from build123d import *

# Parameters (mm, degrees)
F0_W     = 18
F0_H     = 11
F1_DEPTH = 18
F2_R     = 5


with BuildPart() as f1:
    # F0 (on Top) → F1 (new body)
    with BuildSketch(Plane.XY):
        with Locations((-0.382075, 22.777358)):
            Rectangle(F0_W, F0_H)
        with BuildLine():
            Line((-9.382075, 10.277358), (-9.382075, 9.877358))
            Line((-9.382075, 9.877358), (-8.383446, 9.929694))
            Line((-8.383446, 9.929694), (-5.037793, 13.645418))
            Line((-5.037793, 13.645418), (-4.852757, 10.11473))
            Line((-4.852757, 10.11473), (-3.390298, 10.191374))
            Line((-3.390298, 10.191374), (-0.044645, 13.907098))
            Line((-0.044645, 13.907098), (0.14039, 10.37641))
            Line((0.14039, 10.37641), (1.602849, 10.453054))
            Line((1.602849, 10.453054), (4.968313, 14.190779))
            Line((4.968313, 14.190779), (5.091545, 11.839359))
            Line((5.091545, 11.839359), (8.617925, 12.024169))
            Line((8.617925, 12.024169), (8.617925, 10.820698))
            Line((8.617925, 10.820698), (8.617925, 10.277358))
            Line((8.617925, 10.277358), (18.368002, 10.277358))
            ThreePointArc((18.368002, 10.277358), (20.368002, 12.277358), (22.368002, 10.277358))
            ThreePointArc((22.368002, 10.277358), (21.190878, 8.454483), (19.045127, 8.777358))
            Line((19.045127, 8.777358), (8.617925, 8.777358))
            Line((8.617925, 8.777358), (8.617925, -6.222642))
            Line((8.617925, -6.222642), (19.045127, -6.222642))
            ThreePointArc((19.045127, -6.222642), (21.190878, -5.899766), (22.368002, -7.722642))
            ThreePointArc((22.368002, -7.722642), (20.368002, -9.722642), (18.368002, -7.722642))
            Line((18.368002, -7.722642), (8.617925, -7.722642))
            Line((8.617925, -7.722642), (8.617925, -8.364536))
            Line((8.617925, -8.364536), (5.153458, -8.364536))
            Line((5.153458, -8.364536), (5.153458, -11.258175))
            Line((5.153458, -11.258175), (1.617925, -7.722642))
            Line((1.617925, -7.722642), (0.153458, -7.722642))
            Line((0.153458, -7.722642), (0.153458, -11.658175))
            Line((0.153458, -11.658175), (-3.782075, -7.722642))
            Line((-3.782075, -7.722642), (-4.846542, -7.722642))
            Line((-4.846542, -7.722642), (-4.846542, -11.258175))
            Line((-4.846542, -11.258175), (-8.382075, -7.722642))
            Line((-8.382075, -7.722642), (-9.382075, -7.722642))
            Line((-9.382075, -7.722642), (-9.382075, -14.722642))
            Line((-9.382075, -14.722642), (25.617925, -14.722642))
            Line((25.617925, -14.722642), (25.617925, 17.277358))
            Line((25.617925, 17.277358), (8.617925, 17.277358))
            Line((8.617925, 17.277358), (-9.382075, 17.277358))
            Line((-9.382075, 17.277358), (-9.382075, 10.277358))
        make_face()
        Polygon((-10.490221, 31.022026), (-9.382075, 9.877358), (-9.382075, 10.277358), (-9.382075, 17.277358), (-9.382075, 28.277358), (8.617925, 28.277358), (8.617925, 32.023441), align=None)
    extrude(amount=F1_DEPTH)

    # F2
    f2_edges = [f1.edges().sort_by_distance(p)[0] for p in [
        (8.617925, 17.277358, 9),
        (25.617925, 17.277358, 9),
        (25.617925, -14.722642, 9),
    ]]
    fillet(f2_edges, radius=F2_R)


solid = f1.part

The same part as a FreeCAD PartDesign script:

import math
import FreeCAD as App
import Part
import Sketcher
Q = App.Units.Quantity


def edges_at(feature, points):
    """Names of the edges that pass closest to the given points."""
    edges = feature.Shape.Edges
    near = lambda p: min(range(len(edges)), key=lambda i: edges[i].distToShape(Part.Vertex(*p))[0])
    return sorted({f"Edge{near(p) + 1}" for p in points})

doc = App.newDocument("Part")
body = doc.addObject("PartDesign::Body", "Body")

sketch1 = body.newObject("Sketcher::SketchObject", "Sketch")
sketch1.AttachmentSupport = (doc.getObject("XY_Plane"), [""])
sketch1.MapMode = "FlatFace"
sketch1.addGeometry([
    Part.LineSegment(App.Vector(-9.4, 9.9, 0), App.Vector(-8.4, 9.9, 0)),
    Part.LineSegment(App.Vector(-8.4, 9.9, 0), App.Vector(-5, 13.6, 0)),
    Part.LineSegment(App.Vector(-5, 13.6, 0), App.Vector(-4.9, 10.1, 0)),
    Part.LineSegment(App.Vector(-4.9, 10.1, 0), App.Vector(-3.4, 10.2, 0)),
    Part.LineSegment(App.Vector(-3.4, 10.2, 0), App.Vector(0, 13.9, 0)),
    Part.LineSegment(App.Vector(0, 13.9, 0), App.Vector(0.1, 10.4, 0)),
    Part.LineSegment(App.Vector(0.1, 10.4, 0), App.Vector(1.6, 10.5, 0)),
    Part.LineSegment(App.Vector(1.6, 10.5, 0), App.Vector(5, 14.2, 0)),
    Part.LineSegment(App.Vector(5, 14.2, 0), App.Vector(5.1, 11.8, 0)),
    Part.LineSegment(App.Vector(5.1, 11.8, 0), App.Vector(8.6, 12, 0)),
    Part.LineSegment(App.Vector(8.6, 12, 0), App.Vector(8.6, 10.3, 0)),
    Part.LineSegment(App.Vector(8.6, 10.3, 0), App.Vector(18.4, 10.3, 0)),
    Part.ArcOfCircle(Part.Circle(App.Vector(20.4, 10.3, 0), App.Vector(0, 0, 1), 2), math.radians(0), math.radians(180)),
    Part.ArcOfCircle(Part.Circle(App.Vector(20.4, 10.3, 0), App.Vector(0, 0, 1), 2), math.radians(-131), math.radians(0)),
    Part.LineSegment(App.Vector(19, 8.8, 0), App.Vector(8.6, 8.8, 0)),
    Part.LineSegment(App.Vector(8.6, 8.8, 0), App.Vector(8.6, -6.2, 0)),
    Part.LineSegment(App.Vector(8.6, -6.2, 0), App.Vector(19, -6.2, 0)),
    Part.ArcOfCircle(Part.Circle(App.Vector(20.4, -7.7, 0), App.Vector(0, 0, 1), 2), math.radians(0), math.radians(131)),
    Part.ArcOfCircle(Part.Circle(App.Vector(20.4, -7.7, 0), App.Vector(0, 0, 1), 2), math.radians(180), math.radians(360)),
    Part.LineSegment(App.Vector(18.4, -7.7, 0), App.Vector(8.6, -7.7, 0)),
    Part.LineSegment(App.Vector(8.6, -7.7, 0), App.Vector(8.6, -8.4, 0)),
    Part.LineSegment(App.Vector(8.6, -8.4, 0), App.Vector(5.2, -8.4, 0)),
    Part.LineSegment(App.Vector(5.2, -8.4, 0), App.Vector(5.2, -11.3, 0)),
    Part.LineSegment(App.Vector(5.2, -11.3, 0), App.Vector(1.6, -7.7, 0)),
    Part.LineSegment(App.Vector(1.6, -7.7, 0), App.Vector(0.2, -7.7, 0)),
    Part.LineSegment(App.Vector(0.2, -7.7, 0), App.Vector(0.2, -11.7, 0)),
    Part.LineSegment(App.Vector(0.2, -11.7, 0), App.Vector(-3.8, -7.7, 0)),
    Part.LineSegment(App.Vector(-3.8, -7.7, 0), App.Vector(-4.8, -7.7, 0)),
    Part.LineSegment(App.Vector(-4.8, -7.7, 0), App.Vector(-4.8, -11.3, 0)),
    Part.LineSegment(App.Vector(-4.8, -11.3, 0), App.Vector(-8.4, -7.7, 0)),
    Part.LineSegment(App.Vector(-8.4, -7.7, 0), App.Vector(-9.4, -7.7, 0)),
    Part.LineSegment(App.Vector(-9.4, -7.7, 0), App.Vector(-9.4, -14.7, 0)),
    Part.LineSegment(App.Vector(-9.4, -14.7, 0), App.Vector(25.6, -14.7, 0)),
    Part.LineSegment(App.Vector(25.6, -14.7, 0), App.Vector(25.6, 17.3, 0)),
    Part.LineSegment(App.Vector(25.6, 17.3, 0), App.Vector(8.6, 17.3, 0)),
    Part.LineSegment(App.Vector(8.6, 17.3, 0), App.Vector(8.6, 32, 0)),
    Part.LineSegment(App.Vector(8.6, 32, 0), App.Vector(-10.5, 31, 0)),
    Part.LineSegment(App.Vector(-10.5, 31, 0), App.Vector(-9.4, 9.9, 0)),
], False)
sketch1.addConstraint([
    Sketcher.Constraint("Coincident", 0, 2, 1, 1),
    Sketcher.Constraint("Coincident", 1, 2, 2, 1),
    Sketcher.Constraint("Coincident", 2, 2, 3, 1),
    Sketcher.Constraint("Coincident", 3, 2, 4, 1),
    Sketcher.Constraint("Coincident", 4, 2, 5, 1),
    Sketcher.Constraint("Coincident", 5, 2, 6, 1),
    Sketcher.Constraint("Coincident", 6, 2, 7, 1),
    Sketcher.Constraint("Coincident", 7, 2, 8, 1),
    Sketcher.Constraint("Coincident", 8, 2, 9, 1),
    Sketcher.Constraint("Coincident", 9, 2, 10, 1),
    Sketcher.Constraint("Coincident", 10, 2, 11, 1),
    Sketcher.Constraint("Coincident", 11, 2, 12, 2),
    Sketcher.Constraint("Tangent", 12, 1, 13, 2),
    Sketcher.Constraint("Coincident", 13, 1, 14, 1),
    Sketcher.Constraint("Coincident", 14, 2, 15, 1),
    Sketcher.Constraint("Coincident", 15, 2, 16, 1),
    Sketcher.Constraint("Coincident", 16, 2, 17, 2),
    Sketcher.Constraint("Tangent", 17, 1, 18, 2),
    Sketcher.Constraint("Coincident", 18, 1, 19, 1),
    Sketcher.Constraint("Coincident", 19, 2, 20, 1),
    Sketcher.Constraint("Coincident", 20, 2, 21, 1),
    Sketcher.Constraint("Coincident", 21, 2, 22, 1),
    Sketcher.Constraint("Coincident", 22, 2, 23, 1),
    Sketcher.Constraint("Coincident", 23, 2, 24, 1),
    Sketcher.Constraint("Coincident", 24, 2, 25, 1),
    Sketcher.Constraint("Coincident", 25, 2, 26, 1),
    Sketcher.Constraint("Coincident", 26, 2, 27, 1),
    Sketcher.Constraint("Coincident", 27, 2, 28, 1),
    Sketcher.Constraint("Coincident", 28, 2, 29, 1),
    Sketcher.Constraint("Coincident", 29, 2, 30, 1),
    Sketcher.Constraint("Coincident", 30, 2, 31, 1),
    Sketcher.Constraint("Coincident", 31, 2, 32, 1),
    Sketcher.Constraint("Coincident", 32, 2, 33, 1),
    Sketcher.Constraint("Coincident", 33, 2, 34, 1),
    Sketcher.Constraint("Coincident", 34, 2, 35, 1),
    Sketcher.Constraint("Coincident", 35, 2, 36, 1),
    Sketcher.Constraint("Coincident", 36, 2, 37, 1),
    Sketcher.Constraint("Coincident", 37, 2, 0, 1),
    Sketcher.Constraint("Vertical", 10),
    Sketcher.Constraint("Horizontal", 11),
    Sketcher.Constraint("Horizontal", 14),
    Sketcher.Constraint("Vertical", 15),
    Sketcher.Constraint("Horizontal", 16),
    Sketcher.Constraint("Horizontal", 19),
    Sketcher.Constraint("Vertical", 20),
    Sketcher.Constraint("Horizontal", 21),
    Sketcher.Constraint("Vertical", 22),
    Sketcher.Constraint("Horizontal", 24),
    Sketcher.Constraint("Vertical", 25),
    Sketcher.Constraint("Horizontal", 27),
    Sketcher.Constraint("Vertical", 28),
    Sketcher.Constraint("Horizontal", 30),
    Sketcher.Constraint("Vertical", 31),
    Sketcher.Constraint("Horizontal", 32),
    Sketcher.Constraint("Vertical", 33),
    Sketcher.Constraint("Horizontal", 34),
    Sketcher.Constraint("Vertical", 35),
    Sketcher.Constraint("Equal", 12, 13),
    Sketcher.Constraint("Equal", 13, 17),
    Sketcher.Constraint("Equal", 17, 18),
    Sketcher.Constraint("Perpendicular", 0, 2),
    Sketcher.Constraint("Perpendicular", 2, 3),
    Sketcher.Constraint("Parallel", 1, 4),
    Sketcher.Constraint("Perpendicular", 3, 5),
    Sketcher.Constraint("Perpendicular", 5, 6),
    Sketcher.Constraint("Parallel", 4, 7),
    Sketcher.Constraint("Perpendicular", 6, 8),
    Sketcher.Constraint("Perpendicular", 8, 9),
    Sketcher.Constraint("Parallel", 23, 26),
    Sketcher.Constraint("Parallel", 26, 29),
    Sketcher.Constraint("Parallel", 9, 36),
    Sketcher.Constraint("Perpendicular", 36, 37),
    Sketcher.Constraint("Horizontal", 13, 3, 10, 2),
    Sketcher.Constraint("Horizontal", 11, 2, 12, 1),
    Sketcher.Constraint("Horizontal", 18, 3, 17, 1),
    Sketcher.Constraint("Horizontal", 17, 1, 18, 1),
    Sketcher.Constraint("Horizontal", 19, 2, 23, 2),
    Sketcher.Constraint("Horizontal", 24, 2, 26, 2),
    Sketcher.Constraint("Horizontal", 22, 2, 28, 2),
    Sketcher.Constraint("Horizontal", 27, 2, 29, 2),
    Sketcher.Constraint("Vertical", 13, 3, 17, 3),
    Sketcher.Constraint("Vertical", 10, 2, 14, 2),
    Sketcher.Constraint("Vertical", 13, 1, 16, 2),
    Sketcher.Constraint("Vertical", 15, 2, 19, 2),
    Sketcher.Constraint("Vertical", 20, 2, 34, 2),
    Sketcher.Constraint("Vertical", 31, 2, 37, 2),
    Sketcher.Constraint("Equal", 1, 4),
    Sketcher.Constraint("Equal", 2, 5),
    Sketcher.Constraint("Equal", 3, 6),
    Sketcher.Constraint("Equal", 4, 23),
    Sketcher.Constraint("Radius", 12, Q("2 mm")),
    Sketcher.Constraint("DistanceX", 30, 2, 30, 1, Q("1 mm")),
    Sketcher.Constraint("DistanceX", 32, 1, 32, 2, Q("35 mm")),
    Sketcher.Constraint("DistanceX", 34, 2, 34, 1, Q("17 mm")),
    Sketcher.Constraint("DistanceY", 15, 2, 15, 1, Q("15 mm")),
    Sketcher.Constraint("DistanceY", 31, 2, 31, 1, Q("7 mm")),
    Sketcher.Constraint("DistanceY", 33, 1, 33, 2, Q("32 mm")),
    Sketcher.Constraint("Angle", 0, Q("3.000004 deg")),
    Sketcher.Constraint("Angle", 1, Q("47.999999 deg")),
    Sketcher.Constraint("Angle", 23, Q("135 deg")),
    Sketcher.Constraint("Distance", 0, Q("0.999999 mm")),
    Sketcher.Constraint("Distance", 1, Q("5 mm")),
    Sketcher.Constraint("DistanceY", 17, 3, 12, 3, Q("17.999999 mm")),
    Sketcher.Constraint("DistanceX", 23, 2, 19, 2, Q("7 mm")),
    Sketcher.Constraint("DistanceX", 24, 2, 21, 2, Q("5 mm")),
    Sketcher.Constraint("DistanceY", 25, 2, 22, 2, Q("0.4 mm")),
    Sketcher.Constraint("DistanceX", -1, 1, 17, 1, Q("22.368002 mm")),
    Sketcher.Constraint("DistanceY", 10, 2, 8, 2, Q("1.562001 mm")),
    Sketcher.Constraint("DistanceY", 10, 2, 10, 1, Q("1.746811 mm")),
    Sketcher.Constraint("DistanceY", 22, 2, 22, 1, Q("2.893639 mm")),
    Sketcher.Constraint("DistanceX", 3, 2, -1, 1, Q("3.390298 mm")),
    Sketcher.Constraint("DistanceX", 0, 2, 4, 2, Q("8.338801 mm")),
    Sketcher.Constraint("Distance", 36, Q("19.134369 mm")),
    Sketcher.Constraint("DistanceY", 35, 1, 35, 2, Q("14.746083 mm")),
    Sketcher.Constraint("DistanceY", -1, 1, 13, 3, Q("10.277358 mm")),
    Sketcher.Constraint("DistanceY", -1, 1, 2, 2, Q("10.11473 mm")),
])
pad1 = body.newObject("PartDesign::Pad", "Pad")
pad1.Profile = sketch1
pad1.Length = 18
doc.recompute()

fillet = body.newObject("PartDesign::Fillet", "Fillet")
fillet.Base = (pad1, edges_at(pad1, [(8.618, 17.277, 9), (25.618, 17.277, 9), (25.618, -14.723, 9)]))
fillet.Radius = 5

doc.recompute()
